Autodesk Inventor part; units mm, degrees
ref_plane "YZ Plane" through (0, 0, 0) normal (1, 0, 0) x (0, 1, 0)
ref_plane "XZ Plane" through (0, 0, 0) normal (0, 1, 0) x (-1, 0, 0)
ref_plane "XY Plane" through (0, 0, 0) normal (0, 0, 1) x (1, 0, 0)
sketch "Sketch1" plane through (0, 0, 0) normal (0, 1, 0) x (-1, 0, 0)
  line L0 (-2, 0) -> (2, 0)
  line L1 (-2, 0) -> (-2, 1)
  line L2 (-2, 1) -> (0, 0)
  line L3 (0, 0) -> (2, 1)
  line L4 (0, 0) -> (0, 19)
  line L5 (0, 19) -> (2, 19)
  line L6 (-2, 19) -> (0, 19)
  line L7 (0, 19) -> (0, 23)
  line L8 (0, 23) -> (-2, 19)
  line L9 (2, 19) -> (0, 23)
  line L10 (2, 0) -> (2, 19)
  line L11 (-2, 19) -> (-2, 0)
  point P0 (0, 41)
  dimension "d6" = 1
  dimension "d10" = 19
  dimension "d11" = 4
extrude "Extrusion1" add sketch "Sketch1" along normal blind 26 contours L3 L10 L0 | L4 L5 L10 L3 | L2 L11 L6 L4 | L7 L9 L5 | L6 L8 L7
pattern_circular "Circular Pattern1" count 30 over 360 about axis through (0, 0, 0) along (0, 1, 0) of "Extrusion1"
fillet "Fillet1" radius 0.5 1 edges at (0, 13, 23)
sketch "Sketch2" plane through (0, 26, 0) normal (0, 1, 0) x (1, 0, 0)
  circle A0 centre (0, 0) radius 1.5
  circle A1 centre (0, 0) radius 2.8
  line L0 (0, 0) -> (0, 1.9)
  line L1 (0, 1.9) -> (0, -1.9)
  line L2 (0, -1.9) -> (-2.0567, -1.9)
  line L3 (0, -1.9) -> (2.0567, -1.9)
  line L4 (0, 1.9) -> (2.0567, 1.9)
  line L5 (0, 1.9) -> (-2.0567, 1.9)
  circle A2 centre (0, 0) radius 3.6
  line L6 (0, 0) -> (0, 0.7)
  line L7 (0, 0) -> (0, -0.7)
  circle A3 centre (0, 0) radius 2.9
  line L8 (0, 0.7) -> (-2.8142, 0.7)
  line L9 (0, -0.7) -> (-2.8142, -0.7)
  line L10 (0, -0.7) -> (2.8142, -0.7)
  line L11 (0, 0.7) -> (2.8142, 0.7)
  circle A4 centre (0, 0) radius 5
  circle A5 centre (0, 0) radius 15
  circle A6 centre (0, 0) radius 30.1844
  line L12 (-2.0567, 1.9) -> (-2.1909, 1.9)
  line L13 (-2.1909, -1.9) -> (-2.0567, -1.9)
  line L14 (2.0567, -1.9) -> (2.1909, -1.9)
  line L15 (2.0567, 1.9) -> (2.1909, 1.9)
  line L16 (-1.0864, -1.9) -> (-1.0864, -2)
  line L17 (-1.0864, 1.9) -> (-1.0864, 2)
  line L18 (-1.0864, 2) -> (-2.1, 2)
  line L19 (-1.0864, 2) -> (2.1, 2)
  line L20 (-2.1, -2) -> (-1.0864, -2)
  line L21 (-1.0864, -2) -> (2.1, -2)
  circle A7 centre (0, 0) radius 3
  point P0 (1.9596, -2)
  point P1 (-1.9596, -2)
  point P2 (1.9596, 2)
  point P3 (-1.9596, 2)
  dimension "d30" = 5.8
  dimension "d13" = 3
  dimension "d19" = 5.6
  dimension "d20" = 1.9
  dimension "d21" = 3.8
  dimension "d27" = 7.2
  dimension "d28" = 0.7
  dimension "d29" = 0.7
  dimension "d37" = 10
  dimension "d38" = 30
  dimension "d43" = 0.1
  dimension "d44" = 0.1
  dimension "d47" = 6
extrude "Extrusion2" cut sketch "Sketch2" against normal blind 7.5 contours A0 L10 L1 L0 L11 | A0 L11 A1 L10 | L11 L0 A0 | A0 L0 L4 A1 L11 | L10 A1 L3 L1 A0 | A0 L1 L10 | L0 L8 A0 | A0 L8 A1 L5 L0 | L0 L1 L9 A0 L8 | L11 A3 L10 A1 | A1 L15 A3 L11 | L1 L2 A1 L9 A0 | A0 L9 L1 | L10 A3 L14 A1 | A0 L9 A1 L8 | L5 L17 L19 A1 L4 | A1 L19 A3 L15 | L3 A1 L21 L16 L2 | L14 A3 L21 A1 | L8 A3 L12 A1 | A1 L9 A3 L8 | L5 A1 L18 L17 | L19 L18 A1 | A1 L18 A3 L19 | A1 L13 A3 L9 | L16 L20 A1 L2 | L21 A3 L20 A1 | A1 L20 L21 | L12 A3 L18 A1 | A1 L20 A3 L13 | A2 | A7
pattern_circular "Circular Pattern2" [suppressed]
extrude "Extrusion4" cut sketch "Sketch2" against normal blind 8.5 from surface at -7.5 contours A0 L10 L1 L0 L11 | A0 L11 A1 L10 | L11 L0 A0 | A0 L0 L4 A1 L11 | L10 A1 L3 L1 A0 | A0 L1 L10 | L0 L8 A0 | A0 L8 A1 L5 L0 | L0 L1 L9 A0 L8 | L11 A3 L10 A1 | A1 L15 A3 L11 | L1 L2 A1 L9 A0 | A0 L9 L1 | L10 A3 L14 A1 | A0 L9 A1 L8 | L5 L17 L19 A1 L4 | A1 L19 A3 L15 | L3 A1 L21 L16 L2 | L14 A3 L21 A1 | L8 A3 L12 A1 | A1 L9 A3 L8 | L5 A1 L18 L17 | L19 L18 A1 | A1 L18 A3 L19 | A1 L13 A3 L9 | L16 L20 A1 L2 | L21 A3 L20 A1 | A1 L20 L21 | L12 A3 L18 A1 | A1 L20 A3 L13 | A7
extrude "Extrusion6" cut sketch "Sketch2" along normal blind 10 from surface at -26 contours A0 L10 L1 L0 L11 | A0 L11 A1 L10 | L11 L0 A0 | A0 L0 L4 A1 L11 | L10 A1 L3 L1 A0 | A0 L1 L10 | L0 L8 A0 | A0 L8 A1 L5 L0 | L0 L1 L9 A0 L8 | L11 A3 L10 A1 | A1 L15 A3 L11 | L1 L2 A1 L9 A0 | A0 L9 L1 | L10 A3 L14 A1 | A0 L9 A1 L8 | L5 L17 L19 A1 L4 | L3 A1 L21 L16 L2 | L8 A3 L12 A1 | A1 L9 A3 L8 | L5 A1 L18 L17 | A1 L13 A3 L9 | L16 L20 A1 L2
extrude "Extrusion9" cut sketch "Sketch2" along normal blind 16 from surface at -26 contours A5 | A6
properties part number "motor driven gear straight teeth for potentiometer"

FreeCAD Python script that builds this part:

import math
import FreeCAD as App
import Part
import Sketcher
Q = App.Units.Quantity


def edges_at(feature, points):
    """Names of the edges that pass closest to the given points."""
    edges = feature.Shape.Edges
    near = lambda p: min(range(len(edges)), key=lambda i: edges[i].distToShape(Part.Vertex(*p))[0])
    return sorted({f"Edge{near(p) + 1}" for p in points})


def add_polygon(sketch, points):
    """Adds a closed chain of lines whose ends are joined by coincident constraints."""
    first, n = sketch.GeometryCount, len(points)
    for a, b in zip(points, points[1:] + points[:1]):
        sketch.addGeometry(Part.LineSegment(App.Vector(*a, 0), App.Vector(*b, 0)), False)
    for i in range(n):
        sketch.addConstraint(Sketcher.Constraint("Coincident", first + i, 2, first + (i + 1) % n, 1))

doc = App.newDocument("Part")
body = doc.addObject("PartDesign::Body", "Body")

# Sketch on XZ plane
sketch1 = body.newObject("Sketcher::SketchObject", "Sketch")
sketch1.AttachmentSupport = (doc.getObject("XZ_Plane"), [""])
sketch1.MapMode = "FlatFace"
add_polygon(sketch1, [(-2, 0), (-2, 19), (0, 23), (2, 19), (2, 1), (0, 0)])  # lines 0-5
sketch1.addConstraint([
    Sketcher.Constraint("Vertical", 0),
    Sketcher.Constraint("Vertical", 3),
    Sketcher.Constraint("Horizontal", 5),
    Sketcher.Constraint("Coincident", 4, 2, -1, 1),
    Sketcher.Constraint("Symmetric", 0, 2, 2, 2, -2),
    Sketcher.Constraint("PointOnObject", 1, 2, -2),
    Sketcher.Constraint("Perpendicular", 2, 4),
    Sketcher.Constraint("DistanceY", 0, 1, 0, 2, Q("19 mm")),
    Sketcher.Constraint("DistanceY", -1, 1, 3, 2, Q("1 mm")),
    Sketcher.Constraint("DistanceY", 0, 2, 1, 2, Q("4 mm")),
])
pad1 = body.newObject("PartDesign::Pad", "Pad")
pad1.Profile = sketch1
pad1.Length = 26
pad1.Reversed = True
doc.recompute()

polarpattern = body.newObject("PartDesign::PolarPattern", "PolarPattern")
polarpattern.Originals = [pad1]
polarpattern.Axis = (doc.getObject("Y_Axis"), [""])
polarpattern.Angle = 360
polarpattern.Occurrences = 30
body.Tip = polarpattern
doc.recompute()

fillet = body.newObject("PartDesign::Fillet", "Fillet")
fillet.Base = (polarpattern, edges_at(polarpattern, [(0, 13, 23)]))
fillet.Radius = 0.5

# Sketch on XZ plane
sketch2 = body.newObject("Sketcher::SketchObject", "Sketch001")
sketch2.AttachmentSupport = (doc.getObject("XZ_Plane"), [""])
sketch2.MapMode = "FlatFace"
sketch2.AttachmentOffset = App.Placement(App.Vector(0, 0, -26), App.Rotation())
sketch2.addGeometry(Part.Circle(App.Vector(0, 0, 0), App.Vector(0, 0, 1), 3.6), False)
sketch2.addConstraint([
    Sketcher.Constraint("Coincident", 0, 3, -1, 1),
    Sketcher.Constraint("Diameter", 0, Q("7.2 mm")),
])
pocket1 = body.newObject("PartDesign::Pocket", "Pocket")
pocket1.Profile = sketch2
pocket1.Length = 7.5
pocket1.Reversed = True

# Sketch on XZ plane
sketch3 = body.newObject("Sketcher::SketchObject", "Sketch002")
sketch3.AttachmentSupport = (doc.getObject("XZ_Plane"), [""])
sketch3.MapMode = "FlatFace"
sketch3.AttachmentOffset = App.Placement(App.Vector(0, 0, -18.5), App.Rotation())
sketch3.addGeometry(Part.Circle(App.Vector(0, 0, 0), App.Vector(0, 0, 1), 3), False)
sketch3.addConstraint([
    Sketcher.Constraint("Coincident", 0, 3, -1, 1),
    Sketcher.Constraint("Diameter", 0, Q("6 mm")),
])
pocket2 = body.newObject("PartDesign::Pocket", "Pocket001")
pocket2.Profile = sketch3
pocket2.Length = 8.5
pocket2.Reversed = True

# Sketch on XZ plane
sketch4 = body.newObject("Sketcher::SketchObject", "Sketch003")
sketch4.AttachmentSupport = (doc.getObject("XZ_Plane"), [""])
sketch4.MapMode = "FlatFace"
sketch4.addGeometry([
    Part.LineSegment(App.Vector(2.19, -1.9, 0), App.Vector(2.06, -1.9, 0)),  # 0
    Part.ArcOfCircle(Part.Circle(App.Vector(0, 0, 0), App.Vector(0, 0, 1), 2.8), math.radians(-45.58), math.radians(-42.73)),  # 1
    Part.LineSegment(App.Vector(1.96, -2, 0), App.Vector(-1.96, -2, 0)),  # 2
    Part.ArcOfCircle(Part.Circle(App.Vector(0, 0, 0), App.Vector(0, 0, 1), 2.8), math.radians(-137.27), math.radians(-134.42)),  # 3
    Part.LineSegment(App.Vector(-2.06, -1.9, 0), App.Vector(-2.19, -1.9, 0)),  # 4
    Part.ArcOfCircle(Part.Circle(App.Vector(0, 0, 0), App.Vector(0, 0, 1), 2.9), math.radians(139), math.radians(221)),  # 5
    Part.LineSegment(App.Vector(-2.19, 1.9, 0), App.Vector(-2.06, 1.9, 0)),  # 6
    Part.ArcOfCircle(Part.Circle(App.Vector(0, 0, 0), App.Vector(0, 0, 1), 2.8), math.radians(134.42), math.radians(137.27)),  # 7
    Part.LineSegment(App.Vector(-1.96, 2, 0), App.Vector(1.96, 2, 0)),  # 8
    Part.ArcOfCircle(Part.Circle(App.Vector(0, 0, 0), App.Vector(0, 0, 1), 2.8), math.radians(42.73), math.radians(45.58)),  # 9
    Part.LineSegment(App.Vector(2.06, 1.9, 0), App.Vector(2.19, 1.9, 0)),  # 10
    Part.ArcOfCircle(Part.Circle(App.Vector(0, 0, 0), App.Vector(0, 0, 1), 2.9), math.radians(-41), math.radians(41)),  # 11
], False)
sketch4.addConstraint([
    Sketcher.Constraint("Coincident", 0, 2, 1, 2),
    Sketcher.Constraint("Coincident", 1, 1, 2, 1),
    Sketcher.Constraint("Coincident", 2, 2, 3, 2),
    Sketcher.Constraint("Coincident", 3, 1, 4, 1),
    Sketcher.Constraint("Coincident", 4, 2, 5, 2),
    Sketcher.Constraint("Coincident", 5, 1, 6, 1),
    Sketcher.Constraint("Coincident", 6, 2, 7, 2),
    Sketcher.Constraint("Coincident", 7, 1, 8, 1),
    Sketcher.Constraint("Coincident", 8, 2, 9, 2),
    Sketcher.Constraint("Coincident", 9, 1, 10, 1),
    Sketcher.Constraint("Coincident", 10, 2, 11, 2),
    Sketcher.Constraint("Coincident", 11, 1, 0, 1),
    Sketcher.Constraint("Horizontal", 0),
    Sketcher.Constraint("Horizontal", 2),
    Sketcher.Constraint("Horizontal", 4),
    Sketcher.Constraint("Horizontal", 6),
    Sketcher.Constraint("Horizontal", 8),
    Sketcher.Constraint("Horizontal", 10),
    Sketcher.Constraint("Coincident", 1, 3, -1, 1),
    Sketcher.Constraint("Coincident", 3, 3, -1, 1),
    Sketcher.Constraint("Coincident", 5, 3, -1, 1),
    Sketcher.Constraint("Coincident", 7, 3, -1, 1),
    Sketcher.Constraint("Coincident", 9, 3, -1, 1),
    Sketcher.Constraint("Coincident", 11, 3, -1, 1),
    Sketcher.Constraint("Equal", 1, 3),
    Sketcher.Constraint("Equal", 3, 7),
    Sketcher.Constraint("Equal", 7, 9),
    Sketcher.Constraint("Equal", 5, 11),
    Sketcher.Constraint("Horizontal", 0, 2, 3, 1),
    Sketcher.Constraint("Horizontal", 6, 2, 9, 1),
    Sketcher.Constraint("Vertical", 4, 2, 5, 1),
    Sketcher.Constraint("Vertical", 2, 2, 7, 1),
    Sketcher.Constraint("Radius", 1, Q("2.8 mm")),
    Sketcher.Constraint("Radius", 5, Q("2.9 mm")),
    Sketcher.Constraint("DistanceY", 0, 2, -1, 1, Q("1.9 mm")),
    Sketcher.Constraint("DistanceY", 1, 1, 0, 2, Q("0.1 mm")),
])
pocket3 = body.newObject("PartDesign::Pocket", "Pocket002")
pocket3.Profile = sketch4
pocket3.Length = 10

# Sketch on XZ plane
sketch5 = body.newObject("Sketcher::SketchObject", "Sketch004")
sketch5.AttachmentSupport = (doc.getObject("XZ_Plane"), [""])
sketch5.MapMode = "FlatFace"
sketch5.addGeometry([
    Part.Circle(App.Vector(0, 0, 0), App.Vector(0, 0, 1), 30),
    Part.Circle(App.Vector(0, 0, 0), App.Vector(0, 0, 1), 5),
], False)
sketch5.addConstraint([
    Sketcher.Constraint("Coincident", 0, 3, -1, 1),
    Sketcher.Constraint("Coincident", 1, 3, -1, 1),
    Sketcher.Constraint("Diameter", 1, Q("10 mm")),
    Sketcher.Constraint("Diameter", 0, Q("60.3688 mm")),
])
pocket4 = body.newObject("PartDesign::Pocket", "Pocket003")
pocket4.Profile = sketch5
pocket4.Length = 16

doc.recompute()
